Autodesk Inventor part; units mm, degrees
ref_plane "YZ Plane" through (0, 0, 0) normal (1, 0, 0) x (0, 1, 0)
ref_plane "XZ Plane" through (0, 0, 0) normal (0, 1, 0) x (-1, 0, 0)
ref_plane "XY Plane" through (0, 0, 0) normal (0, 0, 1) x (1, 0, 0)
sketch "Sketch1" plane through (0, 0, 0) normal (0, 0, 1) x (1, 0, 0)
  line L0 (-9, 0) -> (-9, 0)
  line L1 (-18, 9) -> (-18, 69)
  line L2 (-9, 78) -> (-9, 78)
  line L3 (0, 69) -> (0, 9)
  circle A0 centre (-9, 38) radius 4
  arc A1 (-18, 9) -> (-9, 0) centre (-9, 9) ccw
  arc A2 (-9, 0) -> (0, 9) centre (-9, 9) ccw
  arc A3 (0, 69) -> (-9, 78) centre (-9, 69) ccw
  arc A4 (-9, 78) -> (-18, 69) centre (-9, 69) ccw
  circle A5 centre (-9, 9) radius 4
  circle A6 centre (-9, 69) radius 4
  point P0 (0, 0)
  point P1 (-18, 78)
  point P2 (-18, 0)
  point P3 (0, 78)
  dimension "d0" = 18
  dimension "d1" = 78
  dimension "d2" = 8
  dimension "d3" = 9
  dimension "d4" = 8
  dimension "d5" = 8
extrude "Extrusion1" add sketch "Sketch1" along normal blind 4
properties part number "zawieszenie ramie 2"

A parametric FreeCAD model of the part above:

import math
import FreeCAD as App
import Part
import Sketcher

doc = App.newDocument("Part")
body = doc.addObject("PartDesign::Body", "Body")

sketch1 = body.newObject("Sketcher::SketchObject", "Sketch")
sketch1.AttachmentSupport = (doc.getObject("XY_Plane"), [""])
sketch1.MapMode = "FlatFace"
sketch1.addGeometry(Part.LineSegment(App.Vector(-18, 69, 0), App.Vector(-18, 9, 0)), False)
sketch1.addGeometry(Part.ArcOfCircle(Part.Circle(App.Vector(-9, 9, 0), App.Vector(0, 0, 1), 9), math.radians(180), math.radians(360)), False)
sketch1.addGeometry(Part.LineSegment(App.Vector(0, 9, 0), App.Vector(0, 69, 0)), False)
sketch1.addGeometry(Part.ArcOfCircle(Part.Circle(App.Vector(-9, 69, 0), App.Vector(0, 0, 1), 9), math.radians(0), math.radians(180)), False)
sketch1.addGeometry(Part.Circle(App.Vector(-9, 9, 0), App.Vector(0, 0, 1), 4), False)
sketch1.addGeometry(Part.Circle(App.Vector(-9, 38, 0), App.Vector(0, 0, 1), 4), False)
sketch1.addGeometry(Part.Circle(App.Vector(-9, 69, 0), App.Vector(0, 0, 1), 4), False)
sketch1.addConstraint(Sketcher.Constraint("Tangent", 0, 2, 1, 1))
sketch1.addConstraint(Sketcher.Constraint("Tangent", 1, 2, 2, 1))
sketch1.addConstraint(Sketcher.Constraint("Tangent", 2, 2, 3, 1))
sketch1.addConstraint(Sketcher.Constraint("Tangent", 3, 2, 0, 1))
sketch1.addConstraint(Sketcher.Constraint("Vertical", 0))
sketch1.addConstraint(Sketcher.Constraint("Vertical", 2))
sketch1.addConstraint(Sketcher.Constraint("Coincident", 4, 3, 1, 3))
sketch1.addConstraint(Sketcher.Constraint("Coincident", 6, 3, 3, 3))
sketch1.addConstraint(Sketcher.Constraint("Equal", 4, 5))
sketch1.addConstraint(Sketcher.Constraint("Equal", 5, 6))
sketch1.addConstraint(Sketcher.Constraint("PointOnObject", 1, 2, -2))
sketch1.addConstraint(Sketcher.Constraint("Vertical", 4, 3, 5, 3))
sketch1.addConstraint(Sketcher.Constraint("Diameter", 4, 8.0))
sketch1.addConstraint(Sketcher.Constraint("Radius", 1, 9.0))
sketch1.addConstraint(Sketcher.Constraint("DistanceY", -1, 1, 1, 3, 9.0))
sketch1.addConstraint(Sketcher.Constraint("DistanceY", 0, 2, 0, 1, 60.0))
sketch1.addConstraint(Sketcher.Constraint("DistanceY", -1, 1, 5, 3, 38.0))
pad1 = body.newObject("PartDesign::Pad", "Pad")
pad1.Profile = sketch1
pad1.Length = 4

doc.recompute()
